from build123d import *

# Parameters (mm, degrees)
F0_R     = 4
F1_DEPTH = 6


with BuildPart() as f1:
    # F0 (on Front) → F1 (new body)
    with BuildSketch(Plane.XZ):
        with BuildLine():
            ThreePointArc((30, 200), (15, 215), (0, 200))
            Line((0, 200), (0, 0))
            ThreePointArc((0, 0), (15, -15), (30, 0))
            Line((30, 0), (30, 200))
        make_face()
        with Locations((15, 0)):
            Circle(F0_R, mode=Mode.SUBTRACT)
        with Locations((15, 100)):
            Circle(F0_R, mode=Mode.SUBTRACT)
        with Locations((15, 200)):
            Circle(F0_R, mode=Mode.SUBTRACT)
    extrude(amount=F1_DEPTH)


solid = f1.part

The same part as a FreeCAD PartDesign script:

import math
import FreeCAD as App
import Part
import Sketcher

V = App.Vector
Q = App.Units.Quantity

doc = App.newDocument("Part")
body = doc.addObject("PartDesign::Body", "Body")

sketch1 = body.newObject("Sketcher::SketchObject", "Sketch")
sketch1.AttachmentSupport = (doc.getObject("XZ_Plane"), [""])
sketch1.MapMode = "FlatFace"
sketch1.addGeometry(Part.ArcOfCircle(Part.Circle(V(15, 200, 0), V(0, 0, 1), 15), math.radians(0), math.radians(180)), False)
sketch1.addGeometry(Part.LineSegment(V(0, 200, 0), V(0, 0, 0)), False)
sketch1.addGeometry(Part.ArcOfCircle(Part.Circle(V(15, 0, 0), V(0, 0, 1), 15), math.radians(180), math.radians(360)), False)
sketch1.addGeometry(Part.LineSegment(V(30, 0, 0), V(30, 200, 0)), False)
sketch1.addGeometry(Part.Circle(V(15, 0, 0), V(0, 0, 1), 4), False)
sketch1.addGeometry(Part.Circle(V(15, 100, 0), V(0, 0, 1), 4), False)
sketch1.addGeometry(Part.Circle(V(15, 200, 0), V(0, 0, 1), 4), False)
sketch1.addConstraint(Sketcher.Constraint("Tangent", 0, 2, 1, 1))
sketch1.addConstraint(Sketcher.Constraint("Tangent", 1, 2, 2, 1))
sketch1.addConstraint(Sketcher.Constraint("Tangent", 2, 2, 3, 1))
sketch1.addConstraint(Sketcher.Constraint("Tangent", 3, 2, 0, 1))
sketch1.addConstraint(Sketcher.Constraint("Vertical", 1))
sketch1.addConstraint(Sketcher.Constraint("Vertical", 3))
sketch1.addConstraint(Sketcher.Constraint("Coincident", 1, 2, -1, 1))
sketch1.addConstraint(Sketcher.Constraint("Coincident", 4, 3, 2, 3))
sketch1.addConstraint(Sketcher.Constraint("Coincident", 6, 3, 0, 3))
sketch1.addConstraint(Sketcher.Constraint("Equal", 4, 5))
sketch1.addConstraint(Sketcher.Constraint("Equal", 5, 6))
sketch1.addConstraint(Sketcher.Constraint("Vertical", 4, 3, 5, 3))
sketch1.addConstraint(Sketcher.Constraint("Diameter", 4, Q("8 mm")))
sketch1.addConstraint(Sketcher.Constraint("Radius", 0, Q("15 mm")))
sketch1.addConstraint(Sketcher.Constraint("DistanceY", 1, 2, 1, 1, Q("200 mm")))
sketch1.addConstraint(Sketcher.Constraint("DistanceY", -1, 1, 5, 3, Q("100 mm")))
pad1 = body.newObject("PartDesign::Pad", "Pad")
pad1.Profile = sketch1
pad1.Length = 6

doc.recompute()
